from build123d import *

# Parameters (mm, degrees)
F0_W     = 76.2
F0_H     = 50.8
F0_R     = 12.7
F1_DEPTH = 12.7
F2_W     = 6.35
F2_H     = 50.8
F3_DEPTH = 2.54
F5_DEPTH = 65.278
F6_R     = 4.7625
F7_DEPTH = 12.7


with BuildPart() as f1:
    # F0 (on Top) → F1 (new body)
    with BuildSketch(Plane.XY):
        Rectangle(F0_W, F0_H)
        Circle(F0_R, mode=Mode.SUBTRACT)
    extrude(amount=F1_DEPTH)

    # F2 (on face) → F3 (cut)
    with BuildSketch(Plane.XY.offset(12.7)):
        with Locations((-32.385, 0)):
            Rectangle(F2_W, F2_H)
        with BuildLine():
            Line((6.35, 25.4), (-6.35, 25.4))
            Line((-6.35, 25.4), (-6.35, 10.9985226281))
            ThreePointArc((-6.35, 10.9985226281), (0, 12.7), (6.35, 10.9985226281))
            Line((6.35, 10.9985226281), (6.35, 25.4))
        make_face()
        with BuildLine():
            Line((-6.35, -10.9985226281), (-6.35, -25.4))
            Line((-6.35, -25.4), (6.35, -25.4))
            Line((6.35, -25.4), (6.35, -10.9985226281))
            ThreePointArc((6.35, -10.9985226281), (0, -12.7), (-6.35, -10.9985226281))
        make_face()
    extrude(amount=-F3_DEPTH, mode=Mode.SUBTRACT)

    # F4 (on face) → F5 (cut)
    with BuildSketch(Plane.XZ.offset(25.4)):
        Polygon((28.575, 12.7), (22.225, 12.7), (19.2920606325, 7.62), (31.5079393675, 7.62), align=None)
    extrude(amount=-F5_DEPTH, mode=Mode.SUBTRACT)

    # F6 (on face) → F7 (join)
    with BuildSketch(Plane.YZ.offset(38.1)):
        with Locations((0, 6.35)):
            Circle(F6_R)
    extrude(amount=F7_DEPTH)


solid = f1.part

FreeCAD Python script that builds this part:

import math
import FreeCAD as App
import Part
import Sketcher
Q = App.Units.Quantity

doc = App.newDocument("Part")
body = doc.addObject("PartDesign::Body", "Body")

# Sketch on XY plane
sketch1 = body.newObject("Sketcher::SketchObject", "Sketch")
sketch1.AttachmentSupport = (doc.getObject("XY_Plane"), [""])
sketch1.MapMode = "FlatFace"
sketch1.addGeometry(Part.LineSegment(App.Vector(-38.1, 25.4, 0), App.Vector(-38.1, -25.4, 0)), False)
sketch1.addGeometry(Part.LineSegment(App.Vector(-38.1, -25.4, 0), App.Vector(38.1, -25.4, 0)), False)
sketch1.addGeometry(Part.LineSegment(App.Vector(38.1, -25.4, 0), App.Vector(38.1, 25.4, 0)), False)
sketch1.addGeometry(Part.LineSegment(App.Vector(38.1, 25.4, 0), App.Vector(-38.1, 25.4, 0)), False)
sketch1.addGeometry(Part.Circle(App.Vector(0, 0, 0), App.Vector(0, 0, 1), 12.7), False)
sketch1.addConstraint(Sketcher.Constraint("Coincident", 0, 2, 1, 1))
sketch1.addConstraint(Sketcher.Constraint("Coincident", 1, 2, 2, 1))
sketch1.addConstraint(Sketcher.Constraint("Coincident", 2, 2, 3, 1))
sketch1.addConstraint(Sketcher.Constraint("Coincident", 3, 2, 0, 1))
sketch1.addConstraint(Sketcher.Constraint("Vertical", 0))
sketch1.addConstraint(Sketcher.Constraint("Horizontal", 1))
sketch1.addConstraint(Sketcher.Constraint("Vertical", 2))
sketch1.addConstraint(Sketcher.Constraint("Horizontal", 3))
sketch1.addConstraint(Sketcher.Constraint("Coincident", 4, 3, -1, 1))
sketch1.addConstraint(Sketcher.Constraint("Symmetric", 0, 2, 2, 2, -1, 1))
sketch1.addConstraint(Sketcher.Constraint("Diameter", 4, Q("1 in")))
sketch1.addConstraint(Sketcher.Constraint("DistanceX", 1, 1, 1, 2, Q("3 in")))
sketch1.addConstraint(Sketcher.Constraint("DistanceY", 0, 2, 0, 1, Q("2 in")))
pad1 = body.newObject("PartDesign::Pad", "Pad")
pad1.Profile = sketch1
pad1.Length = Q("0.5 in")

# Sketch on XY plane
sketch2 = body.newObject("Sketcher::SketchObject", "Sketch001")
sketch2.AttachmentSupport = (doc.getObject("XY_Plane"), [""])
sketch2.MapMode = "FlatFace"
sketch2.AttachmentOffset = App.Placement(App.Vector(0, 0, 0.5 * 25.4), App.Rotation())
sketch2.addGeometry(Part.LineSegment(App.Vector(-35.56, 25.4, 0), App.Vector(-35.56, -25.4, 0)), False)
sketch2.addGeometry(Part.LineSegment(App.Vector(-35.56, -25.4, 0), App.Vector(-29.21, -25.4, 0)), False)
sketch2.addGeometry(Part.LineSegment(App.Vector(-29.21, -25.4, 0), App.Vector(-29.21, 25.4, 0)), False)
sketch2.addGeometry(Part.LineSegment(App.Vector(-29.21, 25.4, 0), App.Vector(-35.56, 25.4, 0)), False)
sketch2.addGeometry(Part.LineSegment(App.Vector(6.35, 25.4, 0), App.Vector(-6.35, 25.4, 0)), False)
sketch2.addGeometry(Part.LineSegment(App.Vector(-6.35, 25.4, 0), App.Vector(-6.35, 10.998523, 0)), False)
sketch2.addGeometry(Part.ArcOfCircle(Part.Circle(App.Vector(0, 0, 0), App.Vector(0, 0, 1), 12.7), math.radians(60), math.radians(120)), False)
sketch2.addGeometry(Part.LineSegment(App.Vector(6.35, 10.998523, 0), App.Vector(6.35, 25.4, 0)), False)
sketch2.addGeometry(Part.LineSegment(App.Vector(-6.35, -10.998523, 0), App.Vector(-6.35, -25.4, 0)), False)
sketch2.addGeometry(Part.LineSegment(App.Vector(-6.35, -25.4, 0), App.Vector(6.35, -25.4, 0)), False)
sketch2.addGeometry(Part.LineSegment(App.Vector(6.35, -25.4, 0), App.Vector(6.35, -10.998523, 0)), False)
sketch2.addGeometry(Part.ArcOfCircle(Part.Circle(App.Vector(0, 0, 0), App.Vector(0, 0, 1), 12.7), math.radians(-120), math.radians(-60)), False)
sketch2.addConstraint(Sketcher.Constraint("Coincident", 0, 2, 1, 1))
sketch2.addConstraint(Sketcher.Constraint("Coincident", 1, 2, 2, 1))
sketch2.addConstraint(Sketcher.Constraint("Coincident", 2, 2, 3, 1))
sketch2.addConstraint(Sketcher.Constraint("Coincident", 3, 2, 0, 1))
sketch2.addConstraint(Sketcher.Constraint("Coincident", 4, 2, 5, 1))
sketch2.addConstraint(Sketcher.Constraint("Coincident", 5, 2, 6, 2))
sketch2.addConstraint(Sketcher.Constraint("Coincident", 6, 1, 7, 1))
sketch2.addConstraint(Sketcher.Constraint("Coincident", 7, 2, 4, 1))
sketch2.addConstraint(Sketcher.Constraint("Coincident", 8, 2, 9, 1))
sketch2.addConstraint(Sketcher.Constraint("Coincident", 9, 2, 10, 1))
sketch2.addConstraint(Sketcher.Constraint("Coincident", 10, 2, 11, 2))
sketch2.addConstraint(Sketcher.Constraint("Coincident", 11, 1, 8, 1))
sketch2.addConstraint(Sketcher.Constraint("Vertical", 0))
sketch2.addConstraint(Sketcher.Constraint("Horizontal", 1))
sketch2.addConstraint(Sketcher.Constraint("Vertical", 2))
sketch2.addConstraint(Sketcher.Constraint("Horizontal", 3))
sketch2.addConstraint(Sketcher.Constraint("Horizontal", 4))
sketch2.addConstraint(Sketcher.Constraint("Vertical", 5))
sketch2.addConstraint(Sketcher.Constraint("Vertical", 7))
sketch2.addConstraint(Sketcher.Constraint("Vertical", 8))
sketch2.addConstraint(Sketcher.Constraint("Horizontal", 9))
sketch2.addConstraint(Sketcher.Constraint("Vertical", 10))
sketch2.addConstraint(Sketcher.Constraint("Coincident", 6, 3, -1, 1))
sketch2.addConstraint(Sketcher.Constraint("Coincident", 11, 3, -1, 1))
sketch2.addConstraint(Sketcher.Constraint("Equal", 6, 11))
sketch2.addConstraint(Sketcher.Constraint("Symmetric", 7, 2, 8, 2, -1, 1))
sketch2.addConstraint(Sketcher.Constraint("Horizontal", 3, 2, 4, 2))
sketch2.addConstraint(Sketcher.Constraint("Horizontal", 5, 2, 6, 1))
sketch2.addConstraint(Sketcher.Constraint("Horizontal", 1, 2, 8, 2))
sketch2.addConstraint(Sketcher.Constraint("Horizontal", 10, 2, 11, 1))
sketch2.addConstraint(Sketcher.Constraint("Radius", 6, Q("0.5 in")))
sketch2.addConstraint(Sketcher.Constraint("DistanceY", 0, 2, 0, 1, Q("2 in")))
sketch2.addConstraint(Sketcher.Constraint("DistanceX", 4, 2, 4, 1, Q("0.5 in")))
sketch2.addConstraint(Sketcher.Constraint("DistanceX", 1, 1, 1, 2, Q("0.25 in")))
sketch2.addConstraint(Sketcher.Constraint("DistanceX", 0, 2, -1, 1, Q("1.4 in")))
pocket1 = body.newObject("PartDesign::Pocket", "Pocket")
pocket1.Profile = sketch2
pocket1.Length = Q("0.1 in")

# Sketch on XZ plane
sketch3 = body.newObject("Sketcher::SketchObject", "Sketch002")
sketch3.AttachmentSupport = (doc.getObject("XZ_Plane"), [""])
sketch3.MapMode = "FlatFace"
sketch3.AttachmentOffset = App.Placement(App.Vector(0, 0, 1 * 25.4), App.Rotation())
sketch3.addGeometry(Part.LineSegment(App.Vector(28.575, 12.7, 0), App.Vector(22.225, 12.7, 0)), False)
sketch3.addGeometry(Part.LineSegment(App.Vector(22.225, 12.7, 0), App.Vector(19.292061, 7.62, 0)), False)
sketch3.addGeometry(Part.LineSegment(App.Vector(19.292061, 7.62, 0), App.Vector(31.507939, 7.62, 0)), False)
sketch3.addGeometry(Part.LineSegment(App.Vector(31.507939, 7.62, 0), App.Vector(28.575, 12.7, 0)), False)
sketch3.addConstraint(Sketcher.Constraint("Coincident", 0, 2, 1, 1))
sketch3.addConstraint(Sketcher.Constraint("Coincident", 1, 2, 2, 1))
sketch3.addConstraint(Sketcher.Constraint("Coincident", 2, 2, 3, 1))
sketch3.addConstraint(Sketcher.Constraint("Coincident", 3, 2, 0, 1))
sketch3.addConstraint(Sketcher.Constraint("Horizontal", 0))
sketch3.addConstraint(Sketcher.Constraint("Horizontal", 2))
sketch3.addConstraint(Sketcher.Constraint("Equal", 1, 3))
sketch3.addConstraint(Sketcher.Constraint("Angle", 1, Q("-120 deg")))
sketch3.addConstraint(Sketcher.Constraint("DistanceX", 0, 2, 0, 1, Q("0.25 in")))
sketch3.addConstraint(Sketcher.Constraint("DistanceY", -1, 1, 0, 2, Q("0.5 in")))
sketch3.addConstraint(Sketcher.Constraint("DistanceY", -1, 1, 1, 2, Q("0.3 in")))
sketch3.addConstraint(Sketcher.Constraint("DistanceX", -1, 1, 0, 2, Q("0.875 in")))
pocket2 = body.newObject("PartDesign::Pocket", "Pocket001")
pocket2.Profile = sketch3
pocket2.Length = Q("2.57 in")

# Sketch on YZ plane
sketch4 = body.newObject("Sketcher::SketchObject", "Sketch003")
sketch4.AttachmentSupport = (doc.getObject("YZ_Plane"), [""])
sketch4.MapMode = "FlatFace"
sketch4.AttachmentOffset = App.Placement(App.Vector(0, 0, 1.5 * 25.4), App.Rotation())
sketch4.addGeometry(Part.Circle(App.Vector(0, 6.35, 0), App.Vector(0, 0, 1), 4.7625), False)
sketch4.addConstraint(Sketcher.Constraint("PointOnObject", 0, 3, -2))
sketch4.addConstraint(Sketcher.Constraint("Diameter", 0, Q("0.375 in")))
sketch4.addConstraint(Sketcher.Constraint("DistanceY", -1, 1, 0, 3, Q("0.25 in")))
pad2 = body.newObject("PartDesign::Pad", "Pad001")
pad2.Profile = sketch4
pad2.Length = Q("0.5 in")

doc.recompute()
